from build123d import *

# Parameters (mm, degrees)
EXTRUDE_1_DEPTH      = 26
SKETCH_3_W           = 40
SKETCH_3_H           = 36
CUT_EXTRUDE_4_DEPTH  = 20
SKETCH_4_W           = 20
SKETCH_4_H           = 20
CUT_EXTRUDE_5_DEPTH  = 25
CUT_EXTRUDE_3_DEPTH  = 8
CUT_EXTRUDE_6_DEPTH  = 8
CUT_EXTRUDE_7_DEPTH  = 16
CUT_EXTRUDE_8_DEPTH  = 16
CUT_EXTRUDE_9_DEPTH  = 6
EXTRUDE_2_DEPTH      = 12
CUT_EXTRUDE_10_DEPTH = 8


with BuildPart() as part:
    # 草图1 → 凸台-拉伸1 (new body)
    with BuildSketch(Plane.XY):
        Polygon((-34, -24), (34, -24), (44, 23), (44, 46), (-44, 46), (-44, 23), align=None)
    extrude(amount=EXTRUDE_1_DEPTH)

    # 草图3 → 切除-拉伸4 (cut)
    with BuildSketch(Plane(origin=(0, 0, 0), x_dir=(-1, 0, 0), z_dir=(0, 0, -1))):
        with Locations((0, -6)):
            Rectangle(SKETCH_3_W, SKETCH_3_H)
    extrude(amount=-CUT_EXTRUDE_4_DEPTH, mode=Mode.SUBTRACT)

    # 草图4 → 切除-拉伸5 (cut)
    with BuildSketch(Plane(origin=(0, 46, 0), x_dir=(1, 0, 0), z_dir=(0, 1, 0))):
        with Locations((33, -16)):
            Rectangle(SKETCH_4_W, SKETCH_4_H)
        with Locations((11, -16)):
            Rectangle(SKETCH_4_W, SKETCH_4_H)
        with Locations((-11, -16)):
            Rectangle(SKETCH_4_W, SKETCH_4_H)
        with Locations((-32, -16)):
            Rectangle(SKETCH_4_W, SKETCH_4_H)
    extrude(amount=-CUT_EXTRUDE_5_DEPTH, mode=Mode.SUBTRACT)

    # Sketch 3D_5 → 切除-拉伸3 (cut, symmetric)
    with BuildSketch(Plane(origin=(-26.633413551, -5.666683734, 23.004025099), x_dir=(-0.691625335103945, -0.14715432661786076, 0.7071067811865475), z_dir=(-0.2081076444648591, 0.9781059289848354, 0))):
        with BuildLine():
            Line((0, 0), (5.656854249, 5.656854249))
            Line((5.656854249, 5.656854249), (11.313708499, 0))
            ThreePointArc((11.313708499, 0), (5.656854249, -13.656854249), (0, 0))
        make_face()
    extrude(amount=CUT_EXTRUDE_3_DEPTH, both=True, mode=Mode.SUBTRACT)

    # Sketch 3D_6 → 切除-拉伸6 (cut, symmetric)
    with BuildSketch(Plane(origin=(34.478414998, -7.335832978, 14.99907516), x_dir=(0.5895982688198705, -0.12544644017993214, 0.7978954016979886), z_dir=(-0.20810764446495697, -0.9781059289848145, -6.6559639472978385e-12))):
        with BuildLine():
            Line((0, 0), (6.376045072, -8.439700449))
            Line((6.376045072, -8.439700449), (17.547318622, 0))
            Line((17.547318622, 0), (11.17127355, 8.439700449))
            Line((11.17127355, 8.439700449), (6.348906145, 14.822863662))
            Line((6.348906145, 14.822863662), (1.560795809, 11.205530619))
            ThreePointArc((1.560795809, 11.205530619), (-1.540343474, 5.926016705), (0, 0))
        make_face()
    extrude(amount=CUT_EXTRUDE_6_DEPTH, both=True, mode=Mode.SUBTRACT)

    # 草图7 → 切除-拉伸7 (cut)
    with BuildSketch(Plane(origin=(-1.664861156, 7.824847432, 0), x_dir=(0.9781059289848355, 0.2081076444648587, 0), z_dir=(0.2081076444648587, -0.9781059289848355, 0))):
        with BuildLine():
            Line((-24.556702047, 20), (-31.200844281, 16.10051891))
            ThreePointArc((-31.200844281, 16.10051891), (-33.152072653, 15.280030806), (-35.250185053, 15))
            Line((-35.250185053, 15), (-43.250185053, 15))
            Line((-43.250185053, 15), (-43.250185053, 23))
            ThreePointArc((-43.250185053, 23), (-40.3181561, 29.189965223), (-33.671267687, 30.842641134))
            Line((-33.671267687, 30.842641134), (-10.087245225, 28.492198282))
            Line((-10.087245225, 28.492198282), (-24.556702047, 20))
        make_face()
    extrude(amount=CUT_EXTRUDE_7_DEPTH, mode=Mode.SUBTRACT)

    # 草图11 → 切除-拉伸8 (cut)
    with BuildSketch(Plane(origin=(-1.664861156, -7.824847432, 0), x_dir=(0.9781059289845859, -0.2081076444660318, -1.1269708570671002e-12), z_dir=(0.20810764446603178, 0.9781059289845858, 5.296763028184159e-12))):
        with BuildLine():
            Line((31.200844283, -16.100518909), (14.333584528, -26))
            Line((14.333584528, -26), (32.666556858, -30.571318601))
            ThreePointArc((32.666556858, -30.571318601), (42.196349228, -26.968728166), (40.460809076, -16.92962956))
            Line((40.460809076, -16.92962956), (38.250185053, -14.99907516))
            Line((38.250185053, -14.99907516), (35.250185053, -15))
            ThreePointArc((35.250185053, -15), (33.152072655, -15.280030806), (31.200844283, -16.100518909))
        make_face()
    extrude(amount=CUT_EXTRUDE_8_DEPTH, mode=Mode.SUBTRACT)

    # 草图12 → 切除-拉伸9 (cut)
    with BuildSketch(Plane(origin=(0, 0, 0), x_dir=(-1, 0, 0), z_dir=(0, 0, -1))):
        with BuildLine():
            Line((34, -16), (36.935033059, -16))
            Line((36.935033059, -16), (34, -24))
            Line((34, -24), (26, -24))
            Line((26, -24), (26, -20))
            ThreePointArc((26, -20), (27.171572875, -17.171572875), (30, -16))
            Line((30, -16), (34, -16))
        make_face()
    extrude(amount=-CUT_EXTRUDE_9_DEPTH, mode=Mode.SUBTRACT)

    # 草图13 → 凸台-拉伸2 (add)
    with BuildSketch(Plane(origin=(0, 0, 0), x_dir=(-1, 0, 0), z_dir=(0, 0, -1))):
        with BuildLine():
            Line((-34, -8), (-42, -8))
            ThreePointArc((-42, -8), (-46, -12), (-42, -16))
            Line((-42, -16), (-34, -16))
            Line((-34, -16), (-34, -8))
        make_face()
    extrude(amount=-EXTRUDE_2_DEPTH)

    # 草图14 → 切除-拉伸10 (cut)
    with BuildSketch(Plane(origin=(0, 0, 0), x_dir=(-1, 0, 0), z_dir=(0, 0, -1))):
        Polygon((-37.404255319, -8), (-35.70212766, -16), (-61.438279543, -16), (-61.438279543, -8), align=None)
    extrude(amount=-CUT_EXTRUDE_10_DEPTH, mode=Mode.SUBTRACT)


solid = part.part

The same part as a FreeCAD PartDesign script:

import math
import FreeCAD as App
import Part
import Sketcher


def add_polygon(sketch, points):
    """Adds a closed chain of lines whose ends are joined by coincident constraints."""
    first, n = sketch.GeometryCount, len(points)
    for a, b in zip(points, points[1:] + points[:1]):
        sketch.addGeometry(Part.LineSegment(App.Vector(*a, 0), App.Vector(*b, 0)), False)
    for i in range(n):
        sketch.addConstraint(Sketcher.Constraint("Coincident", first + i, 2, first + (i + 1) % n, 1))

doc = App.newDocument("Part")
body = doc.addObject("PartDesign::Body", "Body")

# Sketch on XY plane
sketch1 = body.newObject("Sketcher::SketchObject", "Sketch")
sketch1.AttachmentSupport = (doc.getObject("XY_Plane"), [""])
sketch1.MapMode = "FlatFace"
add_polygon(sketch1, [(-34, -24), (34, -24), (44, 23), (44, 46), (-44, 46), (-44, 23)])  # lines 0-5
sketch1.addConstraint([
    Sketcher.Constraint("Horizontal", 0),
    Sketcher.Constraint("Vertical", 2),
    Sketcher.Constraint("Horizontal", 3),
    Sketcher.Constraint("Vertical", 4),
    Sketcher.Constraint("Symmetric", 1, 2, 4, 2, -2),
    Sketcher.Constraint("Equal", 1, 5),
    Sketcher.Constraint("DistanceX", 0, 1, 0, 2, 68.0),
    Sketcher.Constraint("DistanceX", 3, 2, 3, 1, 88.0),
    Sketcher.Constraint("DistanceY", 2, 1, 2, 2, 23.0),
    Sketcher.Constraint("DistanceY", 0, 2, -1, 1, 24.0),
    Sketcher.Constraint("DistanceY", -1, 1, 1, 2, 23.0),
])
pad1 = body.newObject("PartDesign::Pad", "Pad")
pad1.Profile = sketch1
pad1.Length = 26

# Sketch on XY plane
sketch2 = body.newObject("Sketcher::SketchObject", "Sketch001")
sketch2.AttachmentSupport = (doc.getObject("XY_Plane"), [""])
sketch2.MapMode = "FlatFace"
add_polygon(sketch2, [(20, 12), (20, -24), (-20, -24), (-20, 12)])  # lines 0-3
sketch2.addConstraint([
    Sketcher.Constraint("Vertical", 0),
    Sketcher.Constraint("Horizontal", 1),
    Sketcher.Constraint("Vertical", 2),
    Sketcher.Constraint("Horizontal", 3),
    Sketcher.Constraint("DistanceX", 1, 2, 1, 1, 40.0),
    Sketcher.Constraint("DistanceY", 0, 2, 0, 1, 36.0),
    Sketcher.Constraint("DistanceX", -1, 1, 0, 2, 20.0),
    Sketcher.Constraint("DistanceY", 0, 2, -1, 1, 24.0),
])
pocket1 = body.newObject("PartDesign::Pocket", "Pocket")
pocket1.Profile = sketch2
pocket1.Length = 20
pocket1.Reversed = True

# Sketch on XZ plane
sketch3 = body.newObject("Sketcher::SketchObject", "Sketch002")
sketch3.AttachmentSupport = (doc.getObject("XZ_Plane"), [""])
sketch3.MapMode = "FlatFace"
sketch3.AttachmentOffset = App.Placement(App.Vector(0, 0, -46), App.Rotation())
add_polygon(sketch3, [(23, 6), (23, 26), (43, 26), (43, 6)])  # lines 0-3
add_polygon(sketch3, [(1, 6), (1, 26), (21, 26), (21, 6)])  # lines 4-7
add_polygon(sketch3, [(-21, 6), (-21, 26), (-1, 26), (-1, 6)])  # lines 8-11
add_polygon(sketch3, [(-42, 6), (-42, 26), (-22, 26), (-22, 6)])  # lines 12-15
sketch3.addConstraint([
    Sketcher.Constraint("Vertical", 0),
    Sketcher.Constraint("Horizontal", 1),
    Sketcher.Constraint("Vertical", 2),
    Sketcher.Constraint("Horizontal", 3),
    Sketcher.Constraint("Vertical", 4),
    Sketcher.Constraint("Horizontal", 5),
    Sketcher.Constraint("Vertical", 6),
    Sketcher.Constraint("Horizontal", 7),
    Sketcher.Constraint("Vertical", 8),
    Sketcher.Constraint("Horizontal", 9),
    Sketcher.Constraint("Vertical", 10),
    Sketcher.Constraint("Horizontal", 11),
    Sketcher.Constraint("Vertical", 12),
    Sketcher.Constraint("Horizontal", 13),
    Sketcher.Constraint("Vertical", 14),
    Sketcher.Constraint("Horizontal", 15),
    Sketcher.Constraint("Symmetric", 5, 2, 8, 2, -2),
    Sketcher.Constraint("Symmetric", 7, 2, 10, 2, -2),
    Sketcher.Constraint("Horizontal", 1, 2, 4, 2),
    Sketcher.Constraint("Horizontal", 3, 2, 6, 2),
    Sketcher.Constraint("Horizontal", 9, 2, 12, 2),
    Sketcher.Constraint("Horizontal", 11, 2, 14, 2),
    Sketcher.Constraint("Equal", 3, 5),
    Sketcher.Constraint("Equal", 11, 13),
    Sketcher.Constraint("Equal", 15, 0),
    Sketcher.Constraint("DistanceX", 1, 1, 1, 2, 20.0),
    Sketcher.Constraint("DistanceX", -1, 1, 0, 2, 23.0),
    Sketcher.Constraint("DistanceY", -1, 1, 0, 2, 26.0),
    Sketcher.Constraint("DistanceX", -1, 1, 4, 2, 1.0),
    Sketcher.Constraint("DistanceX", 12, 2, -1, 1, 42.0),
])
pocket2 = body.newObject("PartDesign::Pocket", "Pocket001")
pocket2.Profile = sketch3
pocket2.Length = 25
pocket2.Reversed = True

# Sketch on an angled plane
sketch4 = body.newObject("Sketcher::SketchObject", "Sketch003")
sketch4.Placement = App.Placement(App.Vector(-26.633414, -5.666684, 23.004025), App.Rotation(App.Vector(-0.691625335, -0.147154327, 0.707106781), App.Vector(0.691625335, 0.147154326, 0.707106781), App.Vector(-0.208107644, 0.978105929, 0), "ZXY"))
sketch4.addGeometry([
    Part.LineSegment(App.Vector(6, 6, 0), App.Vector(0, 0, 0)),
    Part.ArcOfCircle(Part.Circle(App.Vector(6, -6, 0), App.Vector(0, 0, 1), 8), math.radians(135), math.radians(405)),
    Part.LineSegment(App.Vector(11, 0, 0), App.Vector(6, 6, 0)),
], False)
sketch4.addConstraint([
    Sketcher.Constraint("Tangent", 0, 2, 1, 1),
    Sketcher.Constraint("Tangent", 1, 2, 2, 1),
    Sketcher.Constraint("Coincident", 2, 2, 0, 1),
    Sketcher.Constraint("Coincident", 0, 2, -1, 1),
    Sketcher.Constraint("PointOnObject", 1, 2, -1),
    Sketcher.Constraint("Perpendicular", 0, 2),
    Sketcher.Constraint("Radius", 1, 8.0),
])
pocket3 = body.newObject("PartDesign::Pocket", "Pocket002")
pocket3.Profile = sketch4
pocket3.Length = 16
pocket3.Midplane = True

# Sketch on an angled plane
sketch5 = body.newObject("Sketcher::SketchObject", "Sketch004")
sketch5.Placement = App.Placement(App.Vector(34.478415, -7.335833, 14.999075), App.Rotation(App.Vector(0.589598269, -0.12544644, 0.797895402), App.Vector(-0.780426223, 0.166048132, 0.602795926), App.Vector(-0.208107644, -0.978105929, 0), "ZXY"))
sketch5.addGeometry([
    Part.LineSegment(App.Vector(0, 0, 0), App.Vector(6, -8, 0)),  # 0
    Part.LineSegment(App.Vector(6, -8, 0), App.Vector(18, 0, 0)),  # 1
    Part.LineSegment(App.Vector(18, 0, 0), App.Vector(11, 8, 0)),  # 2
    Part.LineSegment(App.Vector(11, 8, 0), App.Vector(6, 15, 0)),  # 3
    Part.LineSegment(App.Vector(6, 15, 0), App.Vector(2, 11, 0)),  # 4
    Part.ArcOfCircle(Part.Circle(App.Vector(6, 5, 0), App.Vector(0, 0, 1), 8), math.radians(127), math.radians(217)),  # 5
], False)
sketch5.addConstraint([
    Sketcher.Constraint("Coincident", 0, 2, 1, 1),
    Sketcher.Constraint("Coincident", 1, 2, 2, 1),
    Sketcher.Constraint("Coincident", 2, 2, 3, 1),
    Sketcher.Constraint("Coincident", 3, 2, 4, 1),
    Sketcher.Constraint("Tangent", 4, 2, 5, 1),
    Sketcher.Constraint("Tangent", 5, 2, 0, 1),
    Sketcher.Constraint("Coincident", 5, 2, -1, 1),
    Sketcher.Constraint("PointOnObject", 1, 2, -1),
    Sketcher.Constraint("Perpendicular", 0, 1),
    Sketcher.Constraint("Perpendicular", 1, 2),
    Sketcher.Constraint("Parallel", 2, 3),
    Sketcher.Constraint("Perpendicular", 3, 4),
    Sketcher.Constraint("Equal", 0, 2),
    Sketcher.Constraint("Radius", 5, 8.0),
    Sketcher.Constraint("DistanceY", 0, 2, -1, 1, 8.4397),
    Sketcher.Constraint("DistanceX", -1, 1, 1, 2, 17.547319),
])
pocket4 = body.newObject("PartDesign::Pocket", "Pocket003")
pocket4.Profile = sketch5
pocket4.Length = 16
pocket4.Midplane = True

# Sketch on an angled plane
sketch6 = body.newObject("Sketcher::SketchObject", "Sketch005")
sketch6.Placement = App.Placement(App.Vector(-1.664861, 7.824847, 0), App.Rotation(App.Vector(0.978105929, 0.208107644, 0), App.Vector(0, 0, 1), App.Vector(0.208107644, -0.978105929, 0), "ZXY"))
sketch6.addGeometry([
    Part.LineSegment(App.Vector(-31.2, 16.1, 0), App.Vector(-24.6, 20, 0)),  # 0
    Part.LineSegment(App.Vector(-24.6, 20, 0), App.Vector(-10.1, 28.5, 0)),  # 1
    Part.LineSegment(App.Vector(-10.1, 28.5, 0), App.Vector(-33.7, 30.8, 0)),  # 2
    Part.ArcOfCircle(Part.Circle(App.Vector(-35.3, 23, 0), App.Vector(0, 0, 1), 8), math.radians(79), math.radians(180)),  # 3
    Part.LineSegment(App.Vector(-43.3, 23, 0), App.Vector(-43.3, 15, 0)),  # 4
    Part.LineSegment(App.Vector(-43.3, 15, 0), App.Vector(-35.3, 15, 0)),  # 5
    Part.ArcOfCircle(Part.Circle(App.Vector(-35.3, 23, 0), App.Vector(0, 0, 1), 8), math.radians(-90), math.radians(-60)),  # 6
], False)
sketch6.addConstraint([
    Sketcher.Constraint("Coincident", 0, 2, 1, 1),
    Sketcher.Constraint("Coincident", 1, 2, 2, 1),
    Sketcher.Constraint("Coincident", 2, 2, 3, 1),
    Sketcher.Constraint("Tangent", 3, 2, 4, 1),
    Sketcher.Constraint("Coincident", 4, 2, 5, 1),
    Sketcher.Constraint("Tangent", 5, 2, 6, 1),
    Sketcher.Constraint("Tangent", 6, 2, 0, 1),
    Sketcher.Constraint("Vertical", 4),
    Sketcher.Constraint("Horizontal", 5),
    Sketcher.Constraint("Coincident", 6, 3, 3, 3),
    Sketcher.Constraint("Equal", 3, 6),
    Sketcher.Constraint("Parallel", 0, 1),
    Sketcher.Constraint("Radius", 3, 8.0),
    Sketcher.Constraint("DistanceY", -1, 1, 3, 3, 23.0),
    Sketcher.Constraint("DistanceY", -1, 1, 0, 2, 20.0),
    Sketcher.Constraint("DistanceY", -1, 1, 1, 2, 28.492198),
    Sketcher.Constraint("Distance", 2, 23.700859),
    Sketcher.Constraint("DistanceY", -1, 1, 2, 2, 30.842641),
    Sketcher.Constraint("DistanceX", 3, 3, -1, 1, 35.250185),
])
pocket5 = body.newObject("PartDesign::Pocket", "Pocket004")
pocket5.Profile = sketch6
pocket5.Length = 16
pocket5.Reversed = True

# Sketch on an angled plane
sketch7 = body.newObject("Sketcher::SketchObject", "Sketch006")
sketch7.Placement = App.Placement(App.Vector(-1.664861, -7.824847, 0), App.Rotation(App.Vector(0.978105929, -0.208107644, 0), App.Vector(0, 0, -1), App.Vector(0.208107644, 0.978105929, 0), "ZXY"))
sketch7.addGeometry([
    Part.LineSegment(App.Vector(31.2, -16.1, 0), App.Vector(14.3, -26, 0)),  # 0
    Part.LineSegment(App.Vector(14.3, -26, 0), App.Vector(32.7, -30.6, 0)),  # 1
    Part.ArcOfCircle(Part.Circle(App.Vector(35.3, -23, 0), App.Vector(0, 0, 1), 8), math.radians(-109), math.radians(49)),  # 2
    Part.LineSegment(App.Vector(40.5, -16.9, 0), App.Vector(38.3, -15, 0)),  # 3
    Part.LineSegment(App.Vector(38.3, -15, 0), App.Vector(35.3, -15, 0)),  # 4
    Part.ArcOfCircle(Part.Circle(App.Vector(35.3, -23, 0), App.Vector(0, 0, 1), 8), math.radians(90), math.radians(120)),  # 5
], False)
sketch7.addConstraint([
    Sketcher.Constraint("Coincident", 0, 2, 1, 1),
    Sketcher.Constraint("Coincident", 1, 2, 2, 1),
    Sketcher.Constraint("Coincident", 2, 2, 3, 1),
    Sketcher.Constraint("Coincident", 3, 2, 4, 1),
    Sketcher.Constraint("Coincident", 4, 2, 5, 1),
    Sketcher.Constraint("Tangent", 5, 2, 0, 1),
    Sketcher.Constraint("Coincident", 5, 3, 2, 3),
    Sketcher.Constraint("Equal", 2, 5),
    Sketcher.Constraint("Vertical", 5, 3, 4, 2),
    Sketcher.Constraint("Radius", 2, 8.0),
    Sketcher.Constraint("Distance", 4, 3.0),
    Sketcher.Constraint("DistanceY", 2, 3, -1, 1, 23.0),
    Sketcher.Constraint("DistanceY", 0, 2, -1, 1, 26.0),
    Sketcher.Constraint("DistanceX", 0, 2, 2, 3, 20.916601),
    Sketcher.Constraint("DistanceY", 1, 2, -1, 1, 30.571319),
    Sketcher.Constraint("DistanceX", -1, 1, 2, 2, 40.460809),
    Sketcher.Constraint("DistanceY", 2, 2, -1, 1, 16.92963),
    Sketcher.Constraint("Distance", 3, 2.934944),
])
pocket6 = body.newObject("PartDesign::Pocket", "Pocket005")
pocket6.Profile = sketch7
pocket6.Length = 16
pocket6.Reversed = True

# Sketch on XY plane
sketch8 = body.newObject("Sketcher::SketchObject", "Sketch007")
sketch8.AttachmentSupport = (doc.getObject("XY_Plane"), [""])
sketch8.MapMode = "FlatFace"
sketch8.addGeometry([
    Part.LineSegment(App.Vector(-34, -24, 0), App.Vector(-36.9, -16, 0)),  # 0
    Part.LineSegment(App.Vector(-36.9, -16, 0), App.Vector(-30, -16, 0)),  # 1
    Part.ArcOfCircle(Part.Circle(App.Vector(-30, -20, 0), App.Vector(0, 0, 1), 4), math.radians(0), math.radians(90)),  # 2
    Part.LineSegment(App.Vector(-26, -20, 0), App.Vector(-26, -24, 0)),  # 3
    Part.LineSegment(App.Vector(-26, -24, 0), App.Vector(-34, -24, 0)),  # 4
], False)
sketch8.addConstraint([
    Sketcher.Constraint("Coincident", 0, 2, 1, 1),
    Sketcher.Constraint("Tangent", 1, 2, 2, 2),
    Sketcher.Constraint("Tangent", 2, 1, 3, 1),
    Sketcher.Constraint("Coincident", 3, 2, 4, 1),
    Sketcher.Constraint("Coincident", 4, 2, 0, 1),
    Sketcher.Constraint("Horizontal", 1),
    Sketcher.Constraint("Vertical", 3),
    Sketcher.Constraint("Horizontal", 4),
    Sketcher.Constraint("Radius", 2, 4.0),
    Sketcher.Constraint("DistanceX", 4, 2, 4, 1, 8.0),
    Sketcher.Constraint("DistanceY", 3, 2, 3, 1, 4.0),
    Sketcher.Constraint("DistanceX", 2, 3, -1, 1, 30.0),
    Sketcher.Constraint("DistanceY", 2, 3, -1, 1, 20.0),
    Sketcher.Constraint("Distance", 0, 8.521409),
])
pocket7 = body.newObject("PartDesign::Pocket", "Pocket006")
pocket7.Profile = sketch8
pocket7.Length = 6
pocket7.Reversed = True

# Sketch on XY plane
sketch9 = body.newObject("Sketcher::SketchObject", "Sketch008")
sketch9.AttachmentSupport = (doc.getObject("XY_Plane"), [""])
sketch9.MapMode = "FlatFace"
sketch9.addGeometry([
    Part.LineSegment(App.Vector(34, -8, 0), App.Vector(42, -8, 0)),
    Part.ArcOfCircle(Part.Circle(App.Vector(42, -12, 0), App.Vector(0, 0, 1), 4), math.radians(-90), math.radians(90)),
    Part.LineSegment(App.Vector(42, -16, 0), App.Vector(34, -16, 0)),
    Part.LineSegment(App.Vector(34, -16, 0), App.Vector(34, -8, 0)),
], False)
sketch9.addConstraint([
    Sketcher.Constraint("Tangent", 0, 2, 1, 2),
    Sketcher.Constraint("Tangent", 1, 1, 2, 1),
    Sketcher.Constraint("Coincident", 2, 2, 3, 1),
    Sketcher.Constraint("Coincident", 3, 2, 0, 1),
    Sketcher.Constraint("Horizontal", 0),
    Sketcher.Constraint("Horizontal", 2),
    Sketcher.Constraint("Vertical", 3),
    Sketcher.Constraint("Equal", 2, 3),
    Sketcher.Constraint("Radius", 1, 4.0),
    Sketcher.Constraint("DistanceX", -1, 1, 1, 3, 42.0),
    Sketcher.Constraint("DistanceY", 1, 3, -1, 1, 12.0),
])
pad2 = body.newObject("PartDesign::Pad", "Pad001")
pad2.Profile = sketch9
pad2.Length = 12

# Sketch on XY plane
sketch10 = body.newObject("Sketcher::SketchObject", "Sketch009")
sketch10.AttachmentSupport = (doc.getObject("XY_Plane"), [""])
sketch10.MapMode = "FlatFace"
add_polygon(sketch10, [(36, -16), (37, -8), (61, -8), (61, -16)])  # lines 0-3
sketch10.addConstraint([
    Sketcher.Constraint("Horizontal", 1),
    Sketcher.Constraint("Vertical", 2),
    Sketcher.Constraint("Horizontal", 3),
    Sketcher.Constraint("DistanceY", 2, 2, 2, 1, 8.0),
    Sketcher.Constraint("DistanceY", 0, 2, -1, 1, 8.0),
    Sketcher.Constraint("DistanceX", 3, 2, 3, 1, 25.736152),
    Sketcher.Constraint("DistanceX", 1, 1, 1, 2, 24.034024),
    Sketcher.Constraint("DistanceX", -1, 1, 1, 2, 61.43828),
])
pocket8 = body.newObject("PartDesign::Pocket", "Pocket007")
pocket8.Profile = sketch10
pocket8.Length = 8
pocket8.Reversed = True

doc.recompute()
